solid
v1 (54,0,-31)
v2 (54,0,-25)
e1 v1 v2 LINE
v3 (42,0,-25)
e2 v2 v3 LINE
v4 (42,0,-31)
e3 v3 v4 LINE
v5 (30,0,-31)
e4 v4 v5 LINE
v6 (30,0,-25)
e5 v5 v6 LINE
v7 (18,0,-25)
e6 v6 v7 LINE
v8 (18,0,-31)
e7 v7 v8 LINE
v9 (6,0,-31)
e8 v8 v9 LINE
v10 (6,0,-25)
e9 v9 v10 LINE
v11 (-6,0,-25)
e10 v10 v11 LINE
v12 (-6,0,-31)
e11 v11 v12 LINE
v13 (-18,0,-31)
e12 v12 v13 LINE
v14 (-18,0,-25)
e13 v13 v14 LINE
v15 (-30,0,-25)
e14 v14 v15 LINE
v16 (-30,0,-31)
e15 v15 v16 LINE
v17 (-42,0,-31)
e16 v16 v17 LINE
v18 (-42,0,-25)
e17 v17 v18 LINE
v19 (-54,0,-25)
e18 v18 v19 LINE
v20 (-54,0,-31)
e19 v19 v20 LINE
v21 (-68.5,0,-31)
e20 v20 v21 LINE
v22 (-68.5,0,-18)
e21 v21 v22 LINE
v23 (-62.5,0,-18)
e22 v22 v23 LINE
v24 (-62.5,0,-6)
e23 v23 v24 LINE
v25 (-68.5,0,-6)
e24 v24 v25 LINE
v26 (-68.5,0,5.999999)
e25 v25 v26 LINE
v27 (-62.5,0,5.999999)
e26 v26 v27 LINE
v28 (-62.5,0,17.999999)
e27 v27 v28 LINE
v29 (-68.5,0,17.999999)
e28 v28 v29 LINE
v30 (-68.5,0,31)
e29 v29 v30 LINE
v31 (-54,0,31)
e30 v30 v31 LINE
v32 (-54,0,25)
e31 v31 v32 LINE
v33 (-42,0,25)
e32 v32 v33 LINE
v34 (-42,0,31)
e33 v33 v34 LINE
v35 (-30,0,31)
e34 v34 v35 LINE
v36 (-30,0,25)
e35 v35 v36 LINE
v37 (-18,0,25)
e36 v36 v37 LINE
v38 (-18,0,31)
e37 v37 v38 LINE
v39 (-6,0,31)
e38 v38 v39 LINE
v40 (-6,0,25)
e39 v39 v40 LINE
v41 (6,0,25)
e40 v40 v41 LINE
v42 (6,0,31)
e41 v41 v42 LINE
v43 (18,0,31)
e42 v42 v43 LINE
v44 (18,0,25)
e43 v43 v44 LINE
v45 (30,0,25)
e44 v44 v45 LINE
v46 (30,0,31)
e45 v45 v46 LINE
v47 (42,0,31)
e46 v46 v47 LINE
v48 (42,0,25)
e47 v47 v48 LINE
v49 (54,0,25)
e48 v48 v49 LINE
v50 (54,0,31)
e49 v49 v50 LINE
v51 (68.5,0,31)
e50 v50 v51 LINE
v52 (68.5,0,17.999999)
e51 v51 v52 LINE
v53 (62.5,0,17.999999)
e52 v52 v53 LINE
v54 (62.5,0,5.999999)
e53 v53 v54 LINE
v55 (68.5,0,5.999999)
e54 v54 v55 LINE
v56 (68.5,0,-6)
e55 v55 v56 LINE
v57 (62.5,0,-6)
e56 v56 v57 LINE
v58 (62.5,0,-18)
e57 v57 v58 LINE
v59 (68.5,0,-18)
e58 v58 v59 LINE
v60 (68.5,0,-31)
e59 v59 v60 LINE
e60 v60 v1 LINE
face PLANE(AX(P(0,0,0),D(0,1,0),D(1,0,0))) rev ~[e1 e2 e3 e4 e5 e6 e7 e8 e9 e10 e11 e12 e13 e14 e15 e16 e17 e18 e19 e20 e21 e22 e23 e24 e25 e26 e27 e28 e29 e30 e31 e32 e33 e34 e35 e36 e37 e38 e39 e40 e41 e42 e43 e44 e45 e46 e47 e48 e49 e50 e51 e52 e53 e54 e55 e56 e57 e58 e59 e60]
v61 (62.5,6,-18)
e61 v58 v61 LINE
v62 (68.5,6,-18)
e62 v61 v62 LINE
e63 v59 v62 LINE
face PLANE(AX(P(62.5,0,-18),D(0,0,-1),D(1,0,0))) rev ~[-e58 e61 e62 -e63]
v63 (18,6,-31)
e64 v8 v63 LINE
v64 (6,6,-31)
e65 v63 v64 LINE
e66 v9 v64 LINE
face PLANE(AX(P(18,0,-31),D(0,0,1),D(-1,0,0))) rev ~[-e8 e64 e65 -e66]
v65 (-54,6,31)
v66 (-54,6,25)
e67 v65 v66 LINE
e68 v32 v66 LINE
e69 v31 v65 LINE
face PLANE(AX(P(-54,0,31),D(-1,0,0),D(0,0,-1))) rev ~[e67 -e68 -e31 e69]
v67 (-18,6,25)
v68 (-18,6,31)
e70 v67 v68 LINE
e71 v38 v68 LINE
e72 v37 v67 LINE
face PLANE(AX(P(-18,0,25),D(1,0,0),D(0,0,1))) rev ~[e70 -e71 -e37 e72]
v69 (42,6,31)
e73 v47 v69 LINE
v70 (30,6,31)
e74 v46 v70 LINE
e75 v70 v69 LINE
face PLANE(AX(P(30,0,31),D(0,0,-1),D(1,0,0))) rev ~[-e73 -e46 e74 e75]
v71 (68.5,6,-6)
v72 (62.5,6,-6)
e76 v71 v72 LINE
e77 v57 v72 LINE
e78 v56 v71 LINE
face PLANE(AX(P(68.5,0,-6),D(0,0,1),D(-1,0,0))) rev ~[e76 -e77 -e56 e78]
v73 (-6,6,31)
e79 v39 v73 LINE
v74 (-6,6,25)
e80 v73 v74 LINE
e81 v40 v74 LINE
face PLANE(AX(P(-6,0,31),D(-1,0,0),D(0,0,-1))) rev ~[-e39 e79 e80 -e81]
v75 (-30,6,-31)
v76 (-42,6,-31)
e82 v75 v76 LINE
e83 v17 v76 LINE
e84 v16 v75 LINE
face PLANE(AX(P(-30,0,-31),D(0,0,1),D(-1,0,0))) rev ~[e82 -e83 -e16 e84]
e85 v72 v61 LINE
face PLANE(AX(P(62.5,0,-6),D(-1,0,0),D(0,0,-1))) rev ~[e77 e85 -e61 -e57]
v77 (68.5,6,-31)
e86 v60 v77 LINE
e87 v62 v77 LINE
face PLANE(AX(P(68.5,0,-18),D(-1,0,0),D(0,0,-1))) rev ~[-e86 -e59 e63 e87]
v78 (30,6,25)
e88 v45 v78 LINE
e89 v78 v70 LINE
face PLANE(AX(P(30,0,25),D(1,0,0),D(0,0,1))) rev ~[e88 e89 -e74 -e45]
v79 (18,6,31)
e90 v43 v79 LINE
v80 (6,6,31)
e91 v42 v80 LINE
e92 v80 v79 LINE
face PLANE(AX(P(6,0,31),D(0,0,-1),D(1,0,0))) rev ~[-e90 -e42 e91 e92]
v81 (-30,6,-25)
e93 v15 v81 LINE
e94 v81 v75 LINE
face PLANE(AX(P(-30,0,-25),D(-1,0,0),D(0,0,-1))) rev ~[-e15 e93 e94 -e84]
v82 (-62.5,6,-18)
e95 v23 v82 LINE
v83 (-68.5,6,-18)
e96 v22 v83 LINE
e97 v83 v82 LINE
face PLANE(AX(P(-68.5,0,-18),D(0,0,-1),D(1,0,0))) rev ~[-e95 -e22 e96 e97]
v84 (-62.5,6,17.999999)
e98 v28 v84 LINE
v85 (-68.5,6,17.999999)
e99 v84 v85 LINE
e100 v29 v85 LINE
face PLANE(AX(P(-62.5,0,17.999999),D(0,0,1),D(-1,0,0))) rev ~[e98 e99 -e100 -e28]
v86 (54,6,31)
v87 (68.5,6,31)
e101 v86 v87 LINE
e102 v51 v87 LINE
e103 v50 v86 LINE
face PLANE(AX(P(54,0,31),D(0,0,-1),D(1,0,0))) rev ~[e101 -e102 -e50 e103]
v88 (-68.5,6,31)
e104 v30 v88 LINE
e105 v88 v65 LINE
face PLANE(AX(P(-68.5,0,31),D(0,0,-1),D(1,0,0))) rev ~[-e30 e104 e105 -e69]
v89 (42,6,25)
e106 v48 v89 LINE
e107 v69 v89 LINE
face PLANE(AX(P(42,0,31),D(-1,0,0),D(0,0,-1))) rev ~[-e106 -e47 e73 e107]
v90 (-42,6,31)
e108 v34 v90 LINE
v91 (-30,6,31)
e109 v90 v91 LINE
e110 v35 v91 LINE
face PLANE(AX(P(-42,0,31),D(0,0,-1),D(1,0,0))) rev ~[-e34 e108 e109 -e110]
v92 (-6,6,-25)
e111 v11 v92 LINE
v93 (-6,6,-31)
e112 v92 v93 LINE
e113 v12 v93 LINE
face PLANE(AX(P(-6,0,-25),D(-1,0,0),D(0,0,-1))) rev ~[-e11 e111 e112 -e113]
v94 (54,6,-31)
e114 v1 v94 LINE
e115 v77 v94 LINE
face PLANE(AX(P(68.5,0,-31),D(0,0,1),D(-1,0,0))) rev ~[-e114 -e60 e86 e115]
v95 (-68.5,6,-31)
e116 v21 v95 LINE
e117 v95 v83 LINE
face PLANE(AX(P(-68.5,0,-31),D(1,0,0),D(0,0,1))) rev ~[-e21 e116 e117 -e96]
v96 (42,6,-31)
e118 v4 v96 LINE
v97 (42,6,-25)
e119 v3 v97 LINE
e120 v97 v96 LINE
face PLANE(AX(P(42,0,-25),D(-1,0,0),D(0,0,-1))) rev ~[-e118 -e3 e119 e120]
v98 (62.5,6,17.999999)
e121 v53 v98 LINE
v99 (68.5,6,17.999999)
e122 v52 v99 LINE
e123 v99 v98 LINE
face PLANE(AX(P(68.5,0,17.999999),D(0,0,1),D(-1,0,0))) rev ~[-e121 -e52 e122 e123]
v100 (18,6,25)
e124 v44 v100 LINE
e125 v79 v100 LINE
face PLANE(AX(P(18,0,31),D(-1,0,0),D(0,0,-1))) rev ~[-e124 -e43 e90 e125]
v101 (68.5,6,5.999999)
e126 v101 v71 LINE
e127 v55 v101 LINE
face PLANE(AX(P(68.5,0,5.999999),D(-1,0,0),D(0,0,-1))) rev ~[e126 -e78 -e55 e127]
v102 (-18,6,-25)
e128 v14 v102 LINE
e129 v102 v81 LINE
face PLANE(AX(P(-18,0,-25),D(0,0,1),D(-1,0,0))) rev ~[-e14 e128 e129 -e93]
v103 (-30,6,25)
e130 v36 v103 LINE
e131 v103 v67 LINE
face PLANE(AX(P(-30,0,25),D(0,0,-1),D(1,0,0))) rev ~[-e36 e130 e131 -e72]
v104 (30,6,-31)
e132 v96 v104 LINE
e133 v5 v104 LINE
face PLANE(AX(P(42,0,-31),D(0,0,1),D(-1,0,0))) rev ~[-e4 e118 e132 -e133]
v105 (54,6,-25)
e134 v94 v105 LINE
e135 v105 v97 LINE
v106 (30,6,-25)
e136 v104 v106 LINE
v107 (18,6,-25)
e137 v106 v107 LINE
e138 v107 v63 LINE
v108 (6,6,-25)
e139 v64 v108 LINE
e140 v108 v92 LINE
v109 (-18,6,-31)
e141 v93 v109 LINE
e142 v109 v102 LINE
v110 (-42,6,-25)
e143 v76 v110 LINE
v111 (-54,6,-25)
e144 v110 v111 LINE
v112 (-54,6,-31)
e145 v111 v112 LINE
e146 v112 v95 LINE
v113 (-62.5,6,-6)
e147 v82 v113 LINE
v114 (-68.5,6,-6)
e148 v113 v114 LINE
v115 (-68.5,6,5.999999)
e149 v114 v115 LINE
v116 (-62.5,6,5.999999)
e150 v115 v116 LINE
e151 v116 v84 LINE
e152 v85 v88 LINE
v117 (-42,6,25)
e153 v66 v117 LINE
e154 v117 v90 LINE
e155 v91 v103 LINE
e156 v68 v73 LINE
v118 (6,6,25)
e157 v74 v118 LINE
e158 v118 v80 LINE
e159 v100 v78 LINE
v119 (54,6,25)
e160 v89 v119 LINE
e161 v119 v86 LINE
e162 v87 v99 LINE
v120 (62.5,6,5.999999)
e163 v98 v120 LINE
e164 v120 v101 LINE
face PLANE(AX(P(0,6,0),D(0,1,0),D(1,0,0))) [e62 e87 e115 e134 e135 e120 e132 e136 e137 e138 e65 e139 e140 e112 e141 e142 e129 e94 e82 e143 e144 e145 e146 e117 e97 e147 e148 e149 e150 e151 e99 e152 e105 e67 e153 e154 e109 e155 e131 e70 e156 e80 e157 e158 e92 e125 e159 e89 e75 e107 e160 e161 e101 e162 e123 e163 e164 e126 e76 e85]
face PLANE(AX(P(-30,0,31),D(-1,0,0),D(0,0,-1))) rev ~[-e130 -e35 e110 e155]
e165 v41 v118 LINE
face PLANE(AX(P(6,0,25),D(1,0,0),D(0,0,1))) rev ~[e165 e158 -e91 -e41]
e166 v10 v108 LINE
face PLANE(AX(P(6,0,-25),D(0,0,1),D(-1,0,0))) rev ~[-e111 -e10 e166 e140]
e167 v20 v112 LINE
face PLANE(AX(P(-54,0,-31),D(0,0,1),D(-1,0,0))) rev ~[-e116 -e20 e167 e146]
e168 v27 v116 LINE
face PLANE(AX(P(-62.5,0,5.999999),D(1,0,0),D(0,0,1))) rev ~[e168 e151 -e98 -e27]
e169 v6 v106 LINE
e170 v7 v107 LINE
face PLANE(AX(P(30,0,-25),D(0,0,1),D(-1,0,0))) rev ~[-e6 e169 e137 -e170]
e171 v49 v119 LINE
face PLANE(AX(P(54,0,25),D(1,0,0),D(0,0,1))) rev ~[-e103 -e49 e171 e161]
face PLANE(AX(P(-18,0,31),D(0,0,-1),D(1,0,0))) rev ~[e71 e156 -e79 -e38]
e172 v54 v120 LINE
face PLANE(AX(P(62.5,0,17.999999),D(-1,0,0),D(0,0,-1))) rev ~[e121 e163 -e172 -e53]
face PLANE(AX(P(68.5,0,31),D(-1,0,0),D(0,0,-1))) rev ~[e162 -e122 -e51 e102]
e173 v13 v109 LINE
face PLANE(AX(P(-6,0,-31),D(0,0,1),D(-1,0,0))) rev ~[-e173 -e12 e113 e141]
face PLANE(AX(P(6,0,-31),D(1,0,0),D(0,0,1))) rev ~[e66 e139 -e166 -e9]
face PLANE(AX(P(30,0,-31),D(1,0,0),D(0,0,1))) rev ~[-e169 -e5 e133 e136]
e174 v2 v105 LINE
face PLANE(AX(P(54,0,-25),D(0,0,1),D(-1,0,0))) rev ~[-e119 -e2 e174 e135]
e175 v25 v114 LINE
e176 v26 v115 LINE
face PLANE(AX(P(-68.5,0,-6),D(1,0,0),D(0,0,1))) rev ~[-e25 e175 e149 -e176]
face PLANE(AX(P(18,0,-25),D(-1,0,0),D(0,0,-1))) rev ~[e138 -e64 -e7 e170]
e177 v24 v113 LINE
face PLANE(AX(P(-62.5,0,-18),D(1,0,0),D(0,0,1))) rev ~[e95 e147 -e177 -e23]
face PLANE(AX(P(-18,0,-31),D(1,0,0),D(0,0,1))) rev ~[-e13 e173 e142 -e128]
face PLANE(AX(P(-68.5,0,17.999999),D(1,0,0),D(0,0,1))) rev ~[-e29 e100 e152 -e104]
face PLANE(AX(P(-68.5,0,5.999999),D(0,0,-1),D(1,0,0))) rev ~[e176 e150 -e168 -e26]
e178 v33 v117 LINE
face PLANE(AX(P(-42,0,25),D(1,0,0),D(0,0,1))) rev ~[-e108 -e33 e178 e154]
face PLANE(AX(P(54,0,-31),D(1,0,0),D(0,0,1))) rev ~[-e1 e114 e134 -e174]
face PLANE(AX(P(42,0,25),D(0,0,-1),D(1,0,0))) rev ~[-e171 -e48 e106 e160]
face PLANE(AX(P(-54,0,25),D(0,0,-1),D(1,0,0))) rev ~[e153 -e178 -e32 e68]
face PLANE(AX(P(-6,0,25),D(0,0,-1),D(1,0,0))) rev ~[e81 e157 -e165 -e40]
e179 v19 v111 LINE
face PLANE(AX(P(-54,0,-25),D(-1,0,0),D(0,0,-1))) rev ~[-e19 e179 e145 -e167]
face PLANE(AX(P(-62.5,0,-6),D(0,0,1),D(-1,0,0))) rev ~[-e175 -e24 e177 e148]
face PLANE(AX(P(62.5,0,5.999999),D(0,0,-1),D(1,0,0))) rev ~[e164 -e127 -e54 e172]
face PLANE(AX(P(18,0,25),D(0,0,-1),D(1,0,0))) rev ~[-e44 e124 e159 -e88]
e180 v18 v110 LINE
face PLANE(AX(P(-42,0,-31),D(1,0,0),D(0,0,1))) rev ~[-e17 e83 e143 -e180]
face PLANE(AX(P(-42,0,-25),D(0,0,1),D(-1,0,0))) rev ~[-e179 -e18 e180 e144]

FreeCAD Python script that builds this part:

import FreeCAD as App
import Part
import Sketcher

V = App.Vector


def add_polygon(sketch, points):
    """Adds a closed chain of lines whose ends are joined by coincident constraints."""
    first, n = sketch.GeometryCount, len(points)
    for a, b in zip(points, points[1:] + points[:1]):
        sketch.addGeometry(Part.LineSegment(App.Vector(*a, 0), App.Vector(*b, 0)), False)
    for i in range(n):
        sketch.addConstraint(Sketcher.Constraint("Coincident", first + i, 2, first + (i + 1) % n, 1))

doc = App.newDocument("Part")
params = doc.addObject("Spreadsheet::Sheet", "Params")
for row, (alias, value) in enumerate([
    ("sketch1_width", "12 mm"),
    ("sketch1_width2", "6 mm"),
    ("sketch1_height", "13.000001 mm"),
    ("sketch1_width3", "14.5 mm"),
    ("pad1_length", "6 mm"),
], start=1):
    params.set(f"A{row}", alias)
    params.set(f"B{row}", "=" + value)
    params.setAlias(f"B{row}", alias)

body = doc.addObject("PartDesign::Body", "Body")

# Sketch on XZ plane
sketch1 = body.newObject("Sketcher::SketchObject", "Sketch")
sketch1.AttachmentSupport = (doc.getObject("XZ_Plane"), [""])
sketch1.MapMode = "FlatFace"
add_polygon(sketch1, [(-54, 31), (-54, 25), (-42, 25), (-42, 31), (-30, 31), (-30, 25), (-18, 25), (-18, 31), (-6, 31), (-6, 25), (6, 25), (6, 31), (18, 31), (18, 25), (30, 25), (30, 31), (42, 31), (42, 25), (54, 25), (54, 31), (68.5, 31), (68.5, 17.999999), (62.5, 17.999999), (62.5, 5.999999), (68.5, 5.999999), (68.5, -6), (62.5, -6), (62.5, -18), (68.5, -18), (68.5, -31), (54, -31), (54, -25), (42, -25), (42, -31), (30, -31), (30, -25), (18, -25), (18, -31), (6, -31), (6, -25), (-6, -25), (-6, -31), (-18, -31), (-18, -25), (-30, -25), (-30, -31), (-42, -31), (-42, -25), (-54, -25), (-54, -31), (-68.5, -31), (-68.5, -18), (-62.5, -18), (-62.5, -6), (-68.5, -6), (-68.5, 5.999999), (-62.5, 5.999999), (-62.5, 17.999999), (-68.5, 17.999999), (-68.5, 31)])  # lines 0-59
sketch1.addConstraint([
    Sketcher.Constraint("Vertical", 0),
    Sketcher.Constraint("Horizontal", 1),
    Sketcher.Constraint("Vertical", 2),
    Sketcher.Constraint("Horizontal", 3),
    Sketcher.Constraint("Vertical", 4),
    Sketcher.Constraint("Horizontal", 5),
    Sketcher.Constraint("Vertical", 6),
    Sketcher.Constraint("Horizontal", 7),
    Sketcher.Constraint("Vertical", 8),
    Sketcher.Constraint("Horizontal", 9),
    Sketcher.Constraint("Vertical", 10),
    Sketcher.Constraint("Horizontal", 11),
    Sketcher.Constraint("Vertical", 12),
    Sketcher.Constraint("Horizontal", 13),
    Sketcher.Constraint("Vertical", 14),
    Sketcher.Constraint("Horizontal", 15),
    Sketcher.Constraint("Vertical", 16),
    Sketcher.Constraint("Horizontal", 17),
    Sketcher.Constraint("Vertical", 18),
    Sketcher.Constraint("Horizontal", 19),
    Sketcher.Constraint("Vertical", 20),
    Sketcher.Constraint("Horizontal", 21),
    Sketcher.Constraint("Vertical", 22),
    Sketcher.Constraint("Horizontal", 23),
    Sketcher.Constraint("Vertical", 24),
    Sketcher.Constraint("Horizontal", 25),
    Sketcher.Constraint("Vertical", 26),
    Sketcher.Constraint("Horizontal", 27),
    Sketcher.Constraint("Vertical", 28),
    Sketcher.Constraint("Horizontal", 29),
    Sketcher.Constraint("Vertical", 30),
    Sketcher.Constraint("Horizontal", 31),
    Sketcher.Constraint("Vertical", 32),
    Sketcher.Constraint("Horizontal", 33),
    Sketcher.Constraint("Vertical", 34),
    Sketcher.Constraint("Horizontal", 35),
    Sketcher.Constraint("Vertical", 36),
    Sketcher.Constraint("Horizontal", 37),
    Sketcher.Constraint("Vertical", 38),
    Sketcher.Constraint("Horizontal", 39),
    Sketcher.Constraint("Vertical", 40),
    Sketcher.Constraint("Horizontal", 41),
    Sketcher.Constraint("Vertical", 42),
    Sketcher.Constraint("Horizontal", 43),
    Sketcher.Constraint("Vertical", 44),
    Sketcher.Constraint("Horizontal", 45),
    Sketcher.Constraint("Vertical", 46),
    Sketcher.Constraint("Horizontal", 47),
    Sketcher.Constraint("Vertical", 48),
    Sketcher.Constraint("Horizontal", 49),
    Sketcher.Constraint("Vertical", 50),
    Sketcher.Constraint("Horizontal", 51),
    Sketcher.Constraint("Vertical", 52),
    Sketcher.Constraint("Horizontal", 53),
    Sketcher.Constraint("Vertical", 54),
    Sketcher.Constraint("Horizontal", 55),
    Sketcher.Constraint("Vertical", 56),
    Sketcher.Constraint("Horizontal", 57),
    Sketcher.Constraint("Vertical", 58),
    Sketcher.Constraint("Horizontal", 59),
    Sketcher.Constraint("Symmetric", 0, 2, 30, 2, -1, 1),
    Sketcher.Constraint("Symmetric", 2, 2, 32, 2, -1, 1),
    Sketcher.Constraint("Symmetric", 4, 2, 34, 2, -1, 1),
    Sketcher.Constraint("Symmetric", 6, 2, 36, 2, -1, 1),
    Sketcher.Constraint("Symmetric", 8, 2, 38, 2, -1, 1),
    Sketcher.Constraint("Symmetric", 10, 2, 40, 2, -1, 1),
    Sketcher.Constraint("Symmetric", 12, 2, 42, 2, -1, 1),
    Sketcher.Constraint("Symmetric", 14, 2, 44, 2, -1, 1),
    Sketcher.Constraint("Symmetric", 16, 2, 46, 2, -1, 1),
    Sketcher.Constraint("Symmetric", 18, 2, 48, 2, -1, 1),
    Sketcher.Constraint("Symmetric", 20, 2, 50, 2, -1, 1),
    Sketcher.Constraint("Symmetric", 22, 2, 52, 2, -1, 1),
    Sketcher.Constraint("Symmetric", 24, 2, 54, 2, -1, 1),
    Sketcher.Constraint("Symmetric", 26, 2, 56, 2, -1, 1),
    Sketcher.Constraint("Symmetric", 28, 2, 58, 2, -1, 1),
    Sketcher.Constraint("Symmetric", 7, 2, 10, 2, -2),
    Sketcher.Constraint("Symmetric", 5, 2, 12, 2, -2),
    Sketcher.Constraint("Symmetric", 3, 2, 14, 2, -2),
    Sketcher.Constraint("Symmetric", 1, 2, 16, 2, -2),
    Sketcher.Constraint("Symmetric", 29, 2, 48, 2, -2),
    Sketcher.Constraint("Symmetric", 27, 2, 50, 2, -2),
    Sketcher.Constraint("Symmetric", 25, 2, 52, 2, -2),
    Sketcher.Constraint("Horizontal", 1, 2, 4, 2),
    Sketcher.Constraint("Horizontal", 3, 2, 6, 2),
    Sketcher.Constraint("Horizontal", 5, 2, 8, 2),
    Sketcher.Constraint("Horizontal", 15, 2, 18, 2),
    Sketcher.Constraint("Vertical", 20, 2, 23, 2),
    Sketcher.Constraint("Equal", 1, 3),
    Sketcher.Constraint("Equal", 3, 5),
    Sketcher.Constraint("Equal", 5, 7),
    Sketcher.Constraint("Equal", 7, 9),
    Sketcher.Constraint("Equal", 57, 0),
    Sketcher.Constraint("Equal", 47, 22),
    Sketcher.Constraint("Equal", 22, 24),
    Sketcher.Constraint("DistanceX", 1, 1, 1, 2, 12.0),
    Sketcher.Constraint("DistanceX", 21, 2, 21, 1, 6.0),
    Sketcher.Constraint("DistanceY", 20, 2, 20, 1, 13.000001),
    Sketcher.Constraint("DistanceX", 19, 1, 19, 2, 14.5),
])
sketch1.setExpression("Constraints[154]", "Params.sketch1_width")
sketch1.setExpression("Constraints[155]", "Params.sketch1_width2")
sketch1.setExpression("Constraints[156]", "Params.sketch1_height")
sketch1.setExpression("Constraints[157]", "Params.sketch1_width3")
pad1 = body.newObject("PartDesign::Pad", "Pad")
pad1.Profile = sketch1
pad1.setExpression("Length", "Params.pad1_length")
pad1.Reversed = True

doc.recompute()
